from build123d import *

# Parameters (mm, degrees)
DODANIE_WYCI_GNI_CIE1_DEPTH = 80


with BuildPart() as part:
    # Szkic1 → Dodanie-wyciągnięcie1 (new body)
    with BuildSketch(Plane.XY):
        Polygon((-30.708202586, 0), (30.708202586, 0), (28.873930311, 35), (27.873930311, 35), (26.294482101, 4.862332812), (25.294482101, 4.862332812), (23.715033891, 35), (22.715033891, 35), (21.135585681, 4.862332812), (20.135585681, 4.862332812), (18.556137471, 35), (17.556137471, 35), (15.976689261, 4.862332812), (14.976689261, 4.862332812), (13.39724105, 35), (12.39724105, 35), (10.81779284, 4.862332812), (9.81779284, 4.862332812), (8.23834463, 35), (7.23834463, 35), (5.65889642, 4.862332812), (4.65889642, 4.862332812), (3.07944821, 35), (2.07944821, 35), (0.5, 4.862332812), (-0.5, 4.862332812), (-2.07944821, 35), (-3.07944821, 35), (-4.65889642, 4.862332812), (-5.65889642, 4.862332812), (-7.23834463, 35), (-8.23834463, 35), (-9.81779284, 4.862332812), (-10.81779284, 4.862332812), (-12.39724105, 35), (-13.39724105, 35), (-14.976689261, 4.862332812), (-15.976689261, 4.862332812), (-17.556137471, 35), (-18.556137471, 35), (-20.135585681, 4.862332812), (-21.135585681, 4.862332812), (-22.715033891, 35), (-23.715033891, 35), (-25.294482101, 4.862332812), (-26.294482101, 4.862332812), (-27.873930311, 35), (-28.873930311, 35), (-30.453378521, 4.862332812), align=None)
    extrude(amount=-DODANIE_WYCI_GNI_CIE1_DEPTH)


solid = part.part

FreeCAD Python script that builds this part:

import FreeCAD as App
import Part
import Sketcher

V = App.Vector
Q = App.Units.Quantity

doc = App.newDocument("Part")
body = doc.addObject("PartDesign::Body", "Body")

# Sketch on XY plane
sketch1 = body.newObject("Sketcher::SketchObject", "Sketch")
sketch1.AttachmentSupport = (doc.getObject("XY_Plane"), [""])
sketch1.MapMode = "FlatFace"
sketch1.addGeometry(Part.LineSegment(V(-30.7, 0, 0), V(30.7, 0, 0)), False)
sketch1.addGeometry(Part.LineSegment(V(30.7, 0, 0), V(28.9, 35, 0)), False)
sketch1.addGeometry(Part.LineSegment(V(28.9, 35, 0), V(27.9, 35, 0)), False)
sketch1.addGeometry(Part.LineSegment(V(27.9, 35, 0), V(26.3, 4.9, 0)), False)
sketch1.addGeometry(Part.LineSegment(V(26.3, 4.9, 0), V(25.3, 4.9, 0)), False)
sketch1.addGeometry(Part.LineSegment(V(25.3, 4.9, 0), V(23.7, 35, 0)), False)
sketch1.addGeometry(Part.LineSegment(V(23.7, 35, 0), V(22.7, 35, 0)), False)
sketch1.addGeometry(Part.LineSegment(V(22.7, 35, 0), V(21.1, 4.9, 0)), False)
sketch1.addGeometry(Part.LineSegment(V(21.1, 4.9, 0), V(20.1, 4.9, 0)), False)
sketch1.addGeometry(Part.LineSegment(V(20.1, 4.9, 0), V(18.6, 35, 0)), False)
sketch1.addGeometry(Part.LineSegment(V(18.6, 35, 0), V(17.6, 35, 0)), False)
sketch1.addGeometry(Part.LineSegment(V(17.6, 35, 0), V(16, 4.9, 0)), False)
sketch1.addGeometry(Part.LineSegment(V(16, 4.9, 0), V(15, 4.9, 0)), False)
sketch1.addGeometry(Part.LineSegment(V(15, 4.9, 0), V(13.4, 35, 0)), False)
sketch1.addGeometry(Part.LineSegment(V(13.4, 35, 0), V(12.4, 35, 0)), False)
sketch1.addGeometry(Part.LineSegment(V(12.4, 35, 0), V(10.8, 4.9, 0)), False)
sketch1.addGeometry(Part.LineSegment(V(10.8, 4.9, 0), V(9.8, 4.9, 0)), False)
sketch1.addGeometry(Part.LineSegment(V(9.8, 4.9, 0), V(8.2, 35, 0)), False)
sketch1.addGeometry(Part.LineSegment(V(8.2, 35, 0), V(7.2, 35, 0)), False)
sketch1.addGeometry(Part.LineSegment(V(7.2, 35, 0), V(5.7, 4.9, 0)), False)
sketch1.addGeometry(Part.LineSegment(V(5.7, 4.9, 0), V(4.7, 4.9, 0)), False)
sketch1.addGeometry(Part.LineSegment(V(4.7, 4.9, 0), V(3.1, 35, 0)), False)
sketch1.addGeometry(Part.LineSegment(V(3.1, 35, 0), V(2.1, 35, 0)), False)
sketch1.addGeometry(Part.LineSegment(V(2.1, 35, 0), V(0.5, 4.9, 0)), False)
sketch1.addGeometry(Part.LineSegment(V(0.5, 4.9, 0), V(-0.5, 4.9, 0)), False)
sketch1.addGeometry(Part.LineSegment(V(-0.5, 4.9, 0), V(-2.1, 35, 0)), False)
sketch1.addGeometry(Part.LineSegment(V(-2.1, 35, 0), V(-3.1, 35, 0)), False)
sketch1.addGeometry(Part.LineSegment(V(-3.1, 35, 0), V(-4.7, 4.9, 0)), False)
sketch1.addGeometry(Part.LineSegment(V(-4.7, 4.9, 0), V(-5.7, 4.9, 0)), False)
sketch1.addGeometry(Part.LineSegment(V(-5.7, 4.9, 0), V(-7.2, 35, 0)), False)
sketch1.addGeometry(Part.LineSegment(V(-7.2, 35, 0), V(-8.2, 35, 0)), False)
sketch1.addGeometry(Part.LineSegment(V(-8.2, 35, 0), V(-9.8, 4.9, 0)), False)
sketch1.addGeometry(Part.LineSegment(V(-9.8, 4.9, 0), V(-10.8, 4.9, 0)), False)
sketch1.addGeometry(Part.LineSegment(V(-10.8, 4.9, 0), V(-12.4, 35, 0)), False)
sketch1.addGeometry(Part.LineSegment(V(-12.4, 35, 0), V(-13.4, 35, 0)), False)
sketch1.addGeometry(Part.LineSegment(V(-13.4, 35, 0), V(-15, 4.9, 0)), False)
sketch1.addGeometry(Part.LineSegment(V(-15, 4.9, 0), V(-16, 4.9, 0)), False)
sketch1.addGeometry(Part.LineSegment(V(-16, 4.9, 0), V(-17.6, 35, 0)), False)
sketch1.addGeometry(Part.LineSegment(V(-17.6, 35, 0), V(-18.6, 35, 0)), False)
sketch1.addGeometry(Part.LineSegment(V(-18.6, 35, 0), V(-20.1, 4.9, 0)), False)
sketch1.addGeometry(Part.LineSegment(V(-20.1, 4.9, 0), V(-21.1, 4.9, 0)), False)
sketch1.addGeometry(Part.LineSegment(V(-21.1, 4.9, 0), V(-22.7, 35, 0)), False)
sketch1.addGeometry(Part.LineSegment(V(-22.7, 35, 0), V(-23.7, 35, 0)), False)
sketch1.addGeometry(Part.LineSegment(V(-23.7, 35, 0), V(-25.3, 4.9, 0)), False)
sketch1.addGeometry(Part.LineSegment(V(-25.3, 4.9, 0), V(-26.3, 4.9, 0)), False)
sketch1.addGeometry(Part.LineSegment(V(-26.3, 4.9, 0), V(-27.9, 35, 0)), False)
sketch1.addGeometry(Part.LineSegment(V(-27.9, 35, 0), V(-28.9, 35, 0)), False)
sketch1.addGeometry(Part.LineSegment(V(-28.9, 35, 0), V(-30.5, 4.9, 0)), False)
sketch1.addGeometry(Part.LineSegment(V(-30.5, 4.9, 0), V(-30.7, 0, 0)), False)
sketch1.addConstraint(Sketcher.Constraint("Coincident", 0, 2, 1, 1))
sketch1.addConstraint(Sketcher.Constraint("Coincident", 1, 2, 2, 1))
sketch1.addConstraint(Sketcher.Constraint("Coincident", 2, 2, 3, 1))
sketch1.addConstraint(Sketcher.Constraint("Coincident", 3, 2, 4, 1))
sketch1.addConstraint(Sketcher.Constraint("Coincident", 4, 2, 5, 1))
sketch1.addConstraint(Sketcher.Constraint("Coincident", 5, 2, 6, 1))
sketch1.addConstraint(Sketcher.Constraint("Coincident", 6, 2, 7, 1))
sketch1.addConstraint(Sketcher.Constraint("Coincident", 7, 2, 8, 1))
sketch1.addConstraint(Sketcher.Constraint("Coincident", 8, 2, 9, 1))
sketch1.addConstraint(Sketcher.Constraint("Coincident", 9, 2, 10, 1))
sketch1.addConstraint(Sketcher.Constraint("Coincident", 10, 2, 11, 1))
sketch1.addConstraint(Sketcher.Constraint("Coincident", 11, 2, 12, 1))
sketch1.addConstraint(Sketcher.Constraint("Coincident", 12, 2, 13, 1))
sketch1.addConstraint(Sketcher.Constraint("Coincident", 13, 2, 14, 1))
sketch1.addConstraint(Sketcher.Constraint("Coincident", 14, 2, 15, 1))
sketch1.addConstraint(Sketcher.Constraint("Coincident", 15, 2, 16, 1))
sketch1.addConstraint(Sketcher.Constraint("Coincident", 16, 2, 17, 1))
sketch1.addConstraint(Sketcher.Constraint("Coincident", 17, 2, 18, 1))
sketch1.addConstraint(Sketcher.Constraint("Coincident", 18, 2, 19, 1))
sketch1.addConstraint(Sketcher.Constraint("Coincident", 19, 2, 20, 1))
sketch1.addConstraint(Sketcher.Constraint("Coincident", 20, 2, 21, 1))
sketch1.addConstraint(Sketcher.Constraint("Coincident", 21, 2, 22, 1))
sketch1.addConstraint(Sketcher.Constraint("Coincident", 22, 2, 23, 1))
sketch1.addConstraint(Sketcher.Constraint("Coincident", 23, 2, 24, 1))
sketch1.addConstraint(Sketcher.Constraint("Coincident", 24, 2, 25, 1))
sketch1.addConstraint(Sketcher.Constraint("Coincident", 25, 2, 26, 1))
sketch1.addConstraint(Sketcher.Constraint("Coincident", 26, 2, 27, 1))
sketch1.addConstraint(Sketcher.Constraint("Coincident", 27, 2, 28, 1))
sketch1.addConstraint(Sketcher.Constraint("Coincident", 28, 2, 29, 1))
sketch1.addConstraint(Sketcher.Constraint("Coincident", 29, 2, 30, 1))
sketch1.addConstraint(Sketcher.Constraint("Coincident", 30, 2, 31, 1))
sketch1.addConstraint(Sketcher.Constraint("Coincident", 31, 2, 32, 1))
sketch1.addConstraint(Sketcher.Constraint("Coincident", 32, 2, 33, 1))
sketch1.addConstraint(Sketcher.Constraint("Coincident", 33, 2, 34, 1))
sketch1.addConstraint(Sketcher.Constraint("Coincident", 34, 2, 35, 1))
sketch1.addConstraint(Sketcher.Constraint("Coincident", 35, 2, 36, 1))
sketch1.addConstraint(Sketcher.Constraint("Coincident", 36, 2, 37, 1))
sketch1.addConstraint(Sketcher.Constraint("Coincident", 37, 2, 38, 1))
sketch1.addConstraint(Sketcher.Constraint("Coincident", 38, 2, 39, 1))
sketch1.addConstraint(Sketcher.Constraint("Coincident", 39, 2, 40, 1))
sketch1.addConstraint(Sketcher.Constraint("Coincident", 40, 2, 41, 1))
sketch1.addConstraint(Sketcher.Constraint("Coincident", 41, 2, 42, 1))
sketch1.addConstraint(Sketcher.Constraint("Coincident", 42, 2, 43, 1))
sketch1.addConstraint(Sketcher.Constraint("Coincident", 43, 2, 44, 1))
sketch1.addConstraint(Sketcher.Constraint("Coincident", 44, 2, 45, 1))
sketch1.addConstraint(Sketcher.Constraint("Coincident", 45, 2, 46, 1))
sketch1.addConstraint(Sketcher.Constraint("Coincident", 46, 2, 47, 1))
sketch1.addConstraint(Sketcher.Constraint("Coincident", 47, 2, 48, 1))
sketch1.addConstraint(Sketcher.Constraint("Coincident", 48, 2, 0, 1))
sketch1.addConstraint(Sketcher.Constraint("Horizontal", 0))
sketch1.addConstraint(Sketcher.Constraint("Horizontal", 2))
sketch1.addConstraint(Sketcher.Constraint("Horizontal", 4))
sketch1.addConstraint(Sketcher.Constraint("Horizontal", 6))
sketch1.addConstraint(Sketcher.Constraint("Horizontal", 8))
sketch1.addConstraint(Sketcher.Constraint("Horizontal", 10))
sketch1.addConstraint(Sketcher.Constraint("Horizontal", 12))
sketch1.addConstraint(Sketcher.Constraint("Horizontal", 14))
sketch1.addConstraint(Sketcher.Constraint("Horizontal", 16))
sketch1.addConstraint(Sketcher.Constraint("Horizontal", 18))
sketch1.addConstraint(Sketcher.Constraint("Horizontal", 20))
sketch1.addConstraint(Sketcher.Constraint("Horizontal", 22))
sketch1.addConstraint(Sketcher.Constraint("Horizontal", 24))
sketch1.addConstraint(Sketcher.Constraint("Horizontal", 26))
sketch1.addConstraint(Sketcher.Constraint("Horizontal", 28))
sketch1.addConstraint(Sketcher.Constraint("Horizontal", 30))
sketch1.addConstraint(Sketcher.Constraint("Horizontal", 32))
sketch1.addConstraint(Sketcher.Constraint("Horizontal", 34))
sketch1.addConstraint(Sketcher.Constraint("Horizontal", 36))
sketch1.addConstraint(Sketcher.Constraint("Horizontal", 38))
sketch1.addConstraint(Sketcher.Constraint("Horizontal", 40))
sketch1.addConstraint(Sketcher.Constraint("Horizontal", 42))
sketch1.addConstraint(Sketcher.Constraint("Horizontal", 44))
sketch1.addConstraint(Sketcher.Constraint("Horizontal", 46))
sketch1.addConstraint(Sketcher.Constraint("Symmetric", 0, 2, 48, 2, -1, 1))
sketch1.addConstraint(Sketcher.Constraint("Symmetric", 22, 2, 25, 2, -2))
sketch1.addConstraint(Sketcher.Constraint("Symmetric", 20, 2, 27, 2, -2))
sketch1.addConstraint(Sketcher.Constraint("Symmetric", 18, 2, 29, 2, -2))
sketch1.addConstraint(Sketcher.Constraint("Symmetric", 16, 2, 31, 2, -2))
sketch1.addConstraint(Sketcher.Constraint("Symmetric", 14, 2, 33, 2, -2))
sketch1.addConstraint(Sketcher.Constraint("Symmetric", 12, 2, 35, 2, -2))
sketch1.addConstraint(Sketcher.Constraint("Symmetric", 10, 2, 37, 2, -2))
sketch1.addConstraint(Sketcher.Constraint("Symmetric", 8, 2, 39, 2, -2))
sketch1.addConstraint(Sketcher.Constraint("Symmetric", 6, 2, 41, 2, -2))
sketch1.addConstraint(Sketcher.Constraint("Symmetric", 4, 2, 43, 2, -2))
sketch1.addConstraint(Sketcher.Constraint("Symmetric", 2, 2, 45, 2, -2))
sketch1.addConstraint(Sketcher.Constraint("Parallel", 1, 5))
sketch1.addConstraint(Sketcher.Constraint("Parallel", 3, 7))
sketch1.addConstraint(Sketcher.Constraint("Parallel", 5, 9))
sketch1.addConstraint(Sketcher.Constraint("Parallel", 7, 11))
sketch1.addConstraint(Sketcher.Constraint("Parallel", 9, 13))
sketch1.addConstraint(Sketcher.Constraint("Parallel", 11, 15))
sketch1.addConstraint(Sketcher.Constraint("Parallel", 13, 17))
sketch1.addConstraint(Sketcher.Constraint("Parallel", 15, 19))
sketch1.addConstraint(Sketcher.Constraint("Parallel", 17, 21))
sketch1.addConstraint(Sketcher.Constraint("Parallel", 19, 23))
sketch1.addConstraint(Sketcher.Constraint("Parallel", 21, 25))
sketch1.addConstraint(Sketcher.Constraint("Parallel", 23, 27))
sketch1.addConstraint(Sketcher.Constraint("Parallel", 25, 29))
sketch1.addConstraint(Sketcher.Constraint("Parallel", 27, 31))
sketch1.addConstraint(Sketcher.Constraint("Parallel", 29, 33))
sketch1.addConstraint(Sketcher.Constraint("Parallel", 31, 35))
sketch1.addConstraint(Sketcher.Constraint("Parallel", 33, 37))
sketch1.addConstraint(Sketcher.Constraint("Parallel", 35, 39))
sketch1.addConstraint(Sketcher.Constraint("Parallel", 37, 41))
sketch1.addConstraint(Sketcher.Constraint("Parallel", 39, 43))
sketch1.addConstraint(Sketcher.Constraint("Parallel", 41, 45))
sketch1.addConstraint(Sketcher.Constraint("Parallel", 43, 47))
sketch1.addConstraint(Sketcher.Constraint("Parallel", 47, 48))
sketch1.addConstraint(Sketcher.Constraint("Horizontal", 2, 2, 5, 2))
sketch1.addConstraint(Sketcher.Constraint("Horizontal", 4, 2, 7, 2))
sketch1.addConstraint(Sketcher.Constraint("Horizontal", 6, 2, 9, 2))
sketch1.addConstraint(Sketcher.Constraint("Horizontal", 8, 2, 11, 2))
sketch1.addConstraint(Sketcher.Constraint("Horizontal", 10, 2, 13, 2))
sketch1.addConstraint(Sketcher.Constraint("Horizontal", 12, 2, 15, 2))
sketch1.addConstraint(Sketcher.Constraint("Horizontal", 14, 2, 17, 2))
sketch1.addConstraint(Sketcher.Constraint("Horizontal", 16, 2, 19, 2))
sketch1.addConstraint(Sketcher.Constraint("Horizontal", 18, 2, 21, 2))
sketch1.addConstraint(Sketcher.Constraint("Horizontal", 20, 2, 23, 2))
sketch1.addConstraint(Sketcher.Constraint("Horizontal", 44, 2, 47, 2))
sketch1.addConstraint(Sketcher.Constraint("Equal", 2, 4))
sketch1.addConstraint(Sketcher.Constraint("Equal", 4, 6))
sketch1.addConstraint(Sketcher.Constraint("Equal", 6, 8))
sketch1.addConstraint(Sketcher.Constraint("Equal", 8, 10))
sketch1.addConstraint(Sketcher.Constraint("Equal", 10, 12))
sketch1.addConstraint(Sketcher.Constraint("Equal", 12, 14))
sketch1.addConstraint(Sketcher.Constraint("Equal", 14, 16))
sketch1.addConstraint(Sketcher.Constraint("Equal", 16, 18))
sketch1.addConstraint(Sketcher.Constraint("Equal", 18, 20))
sketch1.addConstraint(Sketcher.Constraint("Equal", 20, 22))
sketch1.addConstraint(Sketcher.Constraint("Equal", 22, 24))
sketch1.addConstraint(Sketcher.Constraint("Equal", 24, 26))
sketch1.addConstraint(Sketcher.Constraint("DistanceX", 2, 2, 2, 1, 1.0))
sketch1.addConstraint(Sketcher.Constraint("Angle", 1, Q("93 deg")))
sketch1.addConstraint(Sketcher.Constraint("DistanceY", -1, 1, 1, 2, 35.0))
sketch1.addConstraint(Sketcher.Constraint("DistanceX", 0, 1, 0, 2, 61.416405))
pad1 = body.newObject("PartDesign::Pad", "Pad")
pad1.Profile = sketch1
pad1.Length = 80
pad1.Reversed = True

doc.recompute()
